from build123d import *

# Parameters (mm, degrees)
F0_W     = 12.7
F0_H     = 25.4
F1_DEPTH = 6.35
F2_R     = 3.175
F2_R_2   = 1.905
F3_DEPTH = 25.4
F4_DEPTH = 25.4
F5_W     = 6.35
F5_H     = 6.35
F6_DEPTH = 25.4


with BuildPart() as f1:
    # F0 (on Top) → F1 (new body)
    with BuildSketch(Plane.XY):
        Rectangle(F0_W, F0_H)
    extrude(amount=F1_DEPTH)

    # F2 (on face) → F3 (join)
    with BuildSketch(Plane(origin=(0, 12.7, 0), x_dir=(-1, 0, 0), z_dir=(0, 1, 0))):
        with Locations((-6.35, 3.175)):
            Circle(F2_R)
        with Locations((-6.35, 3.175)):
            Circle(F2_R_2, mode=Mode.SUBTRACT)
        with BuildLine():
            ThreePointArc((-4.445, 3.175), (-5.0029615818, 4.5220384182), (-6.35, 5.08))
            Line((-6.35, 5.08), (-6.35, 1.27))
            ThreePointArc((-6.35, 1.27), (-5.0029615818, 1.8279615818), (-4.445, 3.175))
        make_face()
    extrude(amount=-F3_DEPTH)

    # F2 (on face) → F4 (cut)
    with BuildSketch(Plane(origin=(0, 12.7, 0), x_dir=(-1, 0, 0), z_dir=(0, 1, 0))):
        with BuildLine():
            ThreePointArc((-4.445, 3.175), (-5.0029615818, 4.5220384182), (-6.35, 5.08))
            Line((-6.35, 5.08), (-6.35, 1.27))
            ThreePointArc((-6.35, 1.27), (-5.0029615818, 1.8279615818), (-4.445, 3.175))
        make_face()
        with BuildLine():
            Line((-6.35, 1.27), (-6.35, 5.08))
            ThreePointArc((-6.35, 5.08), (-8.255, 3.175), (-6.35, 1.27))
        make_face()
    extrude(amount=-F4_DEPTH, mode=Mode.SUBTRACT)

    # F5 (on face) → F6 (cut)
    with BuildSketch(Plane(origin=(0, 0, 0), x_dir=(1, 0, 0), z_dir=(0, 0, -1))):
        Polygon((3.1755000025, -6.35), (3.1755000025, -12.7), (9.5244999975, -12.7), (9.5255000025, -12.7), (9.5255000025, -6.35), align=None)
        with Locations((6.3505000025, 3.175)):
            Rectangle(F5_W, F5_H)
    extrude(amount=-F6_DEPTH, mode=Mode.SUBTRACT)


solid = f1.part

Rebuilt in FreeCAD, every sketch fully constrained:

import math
import FreeCAD as App
import Part
import Sketcher

V = App.Vector
Q = App.Units.Quantity

doc = App.newDocument("Part")
body = doc.addObject("PartDesign::Body", "Body")

# Sketch on XY plane
sketch1 = body.newObject("Sketcher::SketchObject", "Sketch")
sketch1.AttachmentSupport = (doc.getObject("XY_Plane"), [""])
sketch1.MapMode = "FlatFace"
sketch1.addGeometry([
    Part.LineSegment(V(-6.35, 12.7, 0), V(-6.35, -12.7, 0)),
    Part.LineSegment(V(-6.35, -12.7, 0), V(6.35, -12.7, 0)),
    Part.LineSegment(V(6.35, -12.7, 0), V(6.35, 12.7, 0)),
    Part.LineSegment(V(6.35, 12.7, 0), V(-6.35, 12.7, 0)),
], False)
sketch1.addConstraint([
    Sketcher.Constraint("Coincident", 0, 2, 1, 1),
    Sketcher.Constraint("Coincident", 1, 2, 2, 1),
    Sketcher.Constraint("Coincident", 2, 2, 3, 1),
    Sketcher.Constraint("Coincident", 3, 2, 0, 1),
    Sketcher.Constraint("Vertical", 0),
    Sketcher.Constraint("Horizontal", 1),
    Sketcher.Constraint("Vertical", 2),
    Sketcher.Constraint("Horizontal", 3),
    Sketcher.Constraint("Symmetric", 0, 2, 2, 2, -1, 1),
    Sketcher.Constraint("DistanceY", 0, 2, 0, 1, Q("1 in")),
    Sketcher.Constraint("DistanceX", 1, 1, 1, 2, Q("0.5 in")),
])
pad1 = body.newObject("PartDesign::Pad", "Pad")
pad1.Profile = sketch1
pad1.Length = Q("0.25 in")

# Sketch on XZ plane
sketch2 = body.newObject("Sketcher::SketchObject", "Sketch001")
sketch2.AttachmentSupport = (doc.getObject("XZ_Plane"), [""])
sketch2.MapMode = "FlatFace"
sketch2.AttachmentOffset = App.Placement(V(0, 0, -0.5 * 25.4), App.Rotation())
sketch2.addGeometry([
    Part.Circle(V(6.35, 3.175, 0), V(0, 0, 1), 3.175),
    Part.ArcOfCircle(Part.Circle(V(6.35, 3.175, 0), V(0, 0, 1), 1.905), math.radians(-90), math.radians(90)),
    Part.LineSegment(V(6.35, 5.08, 0), V(6.35, 1.27, 0)),
], False)
sketch2.addConstraint([
    Sketcher.Constraint("Coincident", 1, 1, 2, 2),
    Sketcher.Constraint("Coincident", 2, 1, 1, 2),
    Sketcher.Constraint("Vertical", 2),
    Sketcher.Constraint("Coincident", 1, 3, 0, 3),
    Sketcher.Constraint("Vertical", 0, 3, 1, 1),
    Sketcher.Constraint("Diameter", 0, Q("0.25 in")),
    Sketcher.Constraint("Radius", 1, Q("0.075 in")),
    Sketcher.Constraint("DistanceY", -1, 1, 2, 1, Q("0.2 in")),
    Sketcher.Constraint("DistanceX", -1, 1, 0, 3, Q("0.25 in")),
])
pad2 = body.newObject("PartDesign::Pad", "Pad001")
pad2.Profile = sketch2
pad2.Length = Q("1 in")

# Sketch on XZ plane
sketch3 = body.newObject("Sketcher::SketchObject", "Sketch002")
sketch3.AttachmentSupport = (doc.getObject("XZ_Plane"), [""])
sketch3.MapMode = "FlatFace"
sketch3.AttachmentOffset = App.Placement(V(0, 0, -0.5 * 25.4), App.Rotation())
sketch3.addGeometry([
    Part.ArcOfCircle(Part.Circle(V(6.35, 3.175, 0), V(0, 0, 1), 1.905), math.radians(90), math.radians(180)),
    Part.ArcOfCircle(Part.Circle(V(6.35, 3.175, 0), V(0, 0, 1), 1.905), math.radians(-90), math.radians(90)),
    Part.ArcOfCircle(Part.Circle(V(6.35, 3.175, 0), V(0, 0, 1), 1.905), math.radians(180), math.radians(270)),
], False)
sketch3.addConstraint([
    Sketcher.Constraint("Tangent", 0, 1, 1, 2),
    Sketcher.Constraint("Tangent", 1, 1, 2, 2),
    Sketcher.Constraint("Tangent", 2, 1, 0, 2),
    Sketcher.Constraint("Horizontal", 1, 3, 2, 1),
    Sketcher.Constraint("Vertical", 2, 3, 0, 1),
    Sketcher.Constraint("Vertical", 0, 1, 1, 1),
    Sketcher.Constraint("Radius", 0, Q("0.075 in")),
    Sketcher.Constraint("DistanceY", -1, 1, 0, 1, Q("0.2 in")),
    Sketcher.Constraint("DistanceX", -1, 1, 0, 3, Q("0.25 in")),
])
pocket1 = body.newObject("PartDesign::Pocket", "Pocket")
pocket1.Profile = sketch3
pocket1.Length = Q("1 in")
pocket1.Reversed = True

# Sketch on XY plane
sketch4 = body.newObject("Sketcher::SketchObject", "Sketch003")
sketch4.AttachmentSupport = (doc.getObject("XY_Plane"), [""])
sketch4.MapMode = "FlatFace"
sketch4.addGeometry([
    Part.LineSegment(V(3.1755, 6.35, 0), V(3.1755, 12.7, 0)),  # 0
    Part.LineSegment(V(3.1755, 12.7, 0), V(9.5255, 12.7, 0)),  # 1
    Part.LineSegment(V(9.5255, 12.7, 0), V(9.5255, 6.35, 0)),  # 2
    Part.LineSegment(V(9.5255, 6.35, 0), V(3.1755, 6.35, 0)),  # 3
    Part.LineSegment(V(3.1755, -6.35, 0), V(3.1755, 0, 0)),  # 4
    Part.LineSegment(V(3.1755, 0, 0), V(9.5255, 0, 0)),  # 5
    Part.LineSegment(V(9.5255, 0, 0), V(9.5255, -6.35, 0)),  # 6
    Part.LineSegment(V(9.5255, -6.35, 0), V(3.1755, -6.35, 0)),  # 7
], False)
sketch4.addConstraint([
    Sketcher.Constraint("Coincident", 0, 2, 1, 1),
    Sketcher.Constraint("Coincident", 1, 2, 2, 1),
    Sketcher.Constraint("Coincident", 2, 2, 3, 1),
    Sketcher.Constraint("Coincident", 3, 2, 0, 1),
    Sketcher.Constraint("Coincident", 4, 2, 5, 1),
    Sketcher.Constraint("Coincident", 5, 2, 6, 1),
    Sketcher.Constraint("Coincident", 6, 2, 7, 1),
    Sketcher.Constraint("Coincident", 7, 2, 4, 1),
    Sketcher.Constraint("Vertical", 0),
    Sketcher.Constraint("Horizontal", 1),
    Sketcher.Constraint("Vertical", 2),
    Sketcher.Constraint("Horizontal", 3),
    Sketcher.Constraint("Vertical", 4),
    Sketcher.Constraint("Horizontal", 5),
    Sketcher.Constraint("Vertical", 6),
    Sketcher.Constraint("Horizontal", 7),
    Sketcher.Constraint("Symmetric", 2, 2, 6, 2, -1),
    Sketcher.Constraint("PointOnObject", 4, 2, -1),
    Sketcher.Constraint("Vertical", 3, 2, 4, 2),
    Sketcher.Constraint("Equal", 7, 0),
    Sketcher.Constraint("Equal", 2, 4),
    Sketcher.Constraint("DistanceX", 1, 1, 1, 2, Q("0.25 in")),
    Sketcher.Constraint("DistanceX", -1, 1, 0, 2, Q("3.1755 mm")),
])
pocket2 = body.newObject("PartDesign::Pocket", "Pocket001")
pocket2.Profile = sketch4
pocket2.Length = Q("1 in")
pocket2.Reversed = True

doc.recompute()
